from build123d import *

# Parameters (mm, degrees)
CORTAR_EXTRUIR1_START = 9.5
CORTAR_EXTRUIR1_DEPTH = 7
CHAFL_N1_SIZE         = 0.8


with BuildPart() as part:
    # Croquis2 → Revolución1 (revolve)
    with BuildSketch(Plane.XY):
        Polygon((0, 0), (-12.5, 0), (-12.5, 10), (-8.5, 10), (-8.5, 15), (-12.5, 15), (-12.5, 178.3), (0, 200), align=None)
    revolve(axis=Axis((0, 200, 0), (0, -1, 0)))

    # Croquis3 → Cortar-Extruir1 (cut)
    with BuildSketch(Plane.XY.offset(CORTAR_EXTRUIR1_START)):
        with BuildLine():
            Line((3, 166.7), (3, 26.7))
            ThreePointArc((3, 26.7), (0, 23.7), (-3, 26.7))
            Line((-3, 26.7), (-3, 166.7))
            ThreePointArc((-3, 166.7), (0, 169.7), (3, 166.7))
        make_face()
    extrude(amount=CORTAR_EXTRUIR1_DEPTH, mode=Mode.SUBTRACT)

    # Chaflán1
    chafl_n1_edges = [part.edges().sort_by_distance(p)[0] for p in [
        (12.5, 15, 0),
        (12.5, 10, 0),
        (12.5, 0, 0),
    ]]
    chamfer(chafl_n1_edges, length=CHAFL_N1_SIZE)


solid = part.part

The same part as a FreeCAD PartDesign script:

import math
import FreeCAD as App
import Part
import Sketcher

V = App.Vector


def edges_at(feature, points):
    """Names of the edges that pass closest to the given points."""
    edges = feature.Shape.Edges
    near = lambda p: min(range(len(edges)), key=lambda i: edges[i].distToShape(Part.Vertex(*p))[0])
    return sorted({f"Edge{near(p) + 1}" for p in points})

doc = App.newDocument("Part")
body = doc.addObject("PartDesign::Body", "Body")

sketch1 = doc.addObject("Sketcher::SketchObject", "Sketch")
body.addObject(sketch1)
sketch1.AttachmentSupport = (doc.XY_Plane, [""])
sketch1.MapMode = "FlatFace"
sketch1.addGeometry([
    Part.LineSegment(V(-12.5, 0, 0), V(0, 0, 0)),
    Part.LineSegment(V(0, 0, 0), V(0, 200, 0)),
    Part.LineSegment(V(0, 200, 0), V(-12.5, 178.3, 0)),
    Part.LineSegment(V(-12.5, 178.3, 0), V(-12.5, 15, 0)),
    Part.LineSegment(V(-12.5, 15, 0), V(-8.5, 15, 0)),
    Part.LineSegment(V(-8.5, 15, 0), V(-8.5, 10, 0)),
    Part.LineSegment(V(-8.5, 10, 0), V(-12.5, 10, 0)),
    Part.LineSegment(V(-12.5, 10, 0), V(-12.5, 0, 0)),
], False)
sketch1.addConstraint([
    Sketcher.Constraint("Coincident", 0, 2, 1, 1),
    Sketcher.Constraint("Coincident", 1, 2, 2, 1),
    Sketcher.Constraint("Coincident", 2, 2, 3, 1),
    Sketcher.Constraint("Coincident", 3, 2, 4, 1),
    Sketcher.Constraint("Coincident", 4, 2, 5, 1),
    Sketcher.Constraint("Coincident", 5, 2, 6, 1),
    Sketcher.Constraint("Coincident", 6, 2, 7, 1),
    Sketcher.Constraint("Coincident", 7, 2, 0, 1),
    Sketcher.Constraint("Horizontal", 0),
    Sketcher.Constraint("Vertical", 1),
    Sketcher.Constraint("Vertical", 3),
    Sketcher.Constraint("Horizontal", 4),
    Sketcher.Constraint("Vertical", 5),
    Sketcher.Constraint("Horizontal", 6),
    Sketcher.Constraint("Vertical", 7),
    Sketcher.Constraint("Coincident", 0, 2, -1, 1),
    Sketcher.Constraint("Vertical", 3, 2, 6, 2),
    Sketcher.Constraint("DistanceX", 4, 1, 4, 2, 4.0),
    Sketcher.Constraint("DistanceY", 1, 1, 1, 2, 200.0),
    Sketcher.Constraint("DistanceY", 5, 2, 5, 1, 5.0),
    Sketcher.Constraint("DistanceY", 7, 2, 7, 1, 10.0),
    Sketcher.Constraint("DistanceX", 0, 1, 0, 2, 12.5),
    Sketcher.Constraint("DistanceY", 3, 2, 3, 1, 163.3),
])
revolution = doc.addObject("PartDesign::Revolution", "Revolution")
body.addObject(revolution)
revolution.Profile = sketch1
revolution.ReferenceAxis = (sketch1, ["V_Axis"])
revolution.Angle = 360

sketch2 = doc.addObject("Sketcher::SketchObject", "Sketch001")
body.addObject(sketch2)
sketch2.AttachmentSupport = (doc.XY_Plane, [""])
sketch2.MapMode = "FlatFace"
sketch2.AttachmentOffset = App.Placement(V(0, 0, 9.5), App.Rotation())
sketch2.addGeometry([
    Part.LineSegment(V(3, 26.7, 0), V(3, 166.7, 0)),
    Part.ArcOfCircle(Part.Circle(V(0, 166.7, 0), V(0, 0, 1), 3), math.radians(0), math.radians(180)),
    Part.LineSegment(V(-3, 166.7, 0), V(-3, 26.7, 0)),
    Part.ArcOfCircle(Part.Circle(V(0, 26.7, 0), V(0, 0, 1), 3), math.radians(180), math.radians(360)),
], False)
sketch2.addConstraint([
    Sketcher.Constraint("Tangent", 0, 2, 1, 1),
    Sketcher.Constraint("Tangent", 1, 2, 2, 1),
    Sketcher.Constraint("Tangent", 2, 2, 3, 1),
    Sketcher.Constraint("Tangent", 3, 2, 0, 1),
    Sketcher.Constraint("Vertical", 0),
    Sketcher.Constraint("Vertical", 2),
    Sketcher.Constraint("PointOnObject", 1, 3, -2),
    Sketcher.Constraint("Radius", 1, 3.0),
    Sketcher.Constraint("DistanceY", 0, 1, 0, 2, 140.0),
    Sketcher.Constraint("DistanceY", -1, 1, 1, 3, 166.7),
])
pocket1 = doc.addObject("PartDesign::Pocket", "Pocket")
body.addObject(pocket1)
pocket1.Profile = sketch2
pocket1.Length = 7
pocket1.Reversed = True
doc.recompute()

chamfer = doc.addObject("PartDesign::Chamfer", "Chamfer")
body.addObject(chamfer)
chamfer.Base = (pocket1, edges_at(pocket1, [(12.5, 15, 0), (12.5, 10, 0), (12.5, 0, 0)]))
chamfer.Size = 0.8

doc.recompute()
